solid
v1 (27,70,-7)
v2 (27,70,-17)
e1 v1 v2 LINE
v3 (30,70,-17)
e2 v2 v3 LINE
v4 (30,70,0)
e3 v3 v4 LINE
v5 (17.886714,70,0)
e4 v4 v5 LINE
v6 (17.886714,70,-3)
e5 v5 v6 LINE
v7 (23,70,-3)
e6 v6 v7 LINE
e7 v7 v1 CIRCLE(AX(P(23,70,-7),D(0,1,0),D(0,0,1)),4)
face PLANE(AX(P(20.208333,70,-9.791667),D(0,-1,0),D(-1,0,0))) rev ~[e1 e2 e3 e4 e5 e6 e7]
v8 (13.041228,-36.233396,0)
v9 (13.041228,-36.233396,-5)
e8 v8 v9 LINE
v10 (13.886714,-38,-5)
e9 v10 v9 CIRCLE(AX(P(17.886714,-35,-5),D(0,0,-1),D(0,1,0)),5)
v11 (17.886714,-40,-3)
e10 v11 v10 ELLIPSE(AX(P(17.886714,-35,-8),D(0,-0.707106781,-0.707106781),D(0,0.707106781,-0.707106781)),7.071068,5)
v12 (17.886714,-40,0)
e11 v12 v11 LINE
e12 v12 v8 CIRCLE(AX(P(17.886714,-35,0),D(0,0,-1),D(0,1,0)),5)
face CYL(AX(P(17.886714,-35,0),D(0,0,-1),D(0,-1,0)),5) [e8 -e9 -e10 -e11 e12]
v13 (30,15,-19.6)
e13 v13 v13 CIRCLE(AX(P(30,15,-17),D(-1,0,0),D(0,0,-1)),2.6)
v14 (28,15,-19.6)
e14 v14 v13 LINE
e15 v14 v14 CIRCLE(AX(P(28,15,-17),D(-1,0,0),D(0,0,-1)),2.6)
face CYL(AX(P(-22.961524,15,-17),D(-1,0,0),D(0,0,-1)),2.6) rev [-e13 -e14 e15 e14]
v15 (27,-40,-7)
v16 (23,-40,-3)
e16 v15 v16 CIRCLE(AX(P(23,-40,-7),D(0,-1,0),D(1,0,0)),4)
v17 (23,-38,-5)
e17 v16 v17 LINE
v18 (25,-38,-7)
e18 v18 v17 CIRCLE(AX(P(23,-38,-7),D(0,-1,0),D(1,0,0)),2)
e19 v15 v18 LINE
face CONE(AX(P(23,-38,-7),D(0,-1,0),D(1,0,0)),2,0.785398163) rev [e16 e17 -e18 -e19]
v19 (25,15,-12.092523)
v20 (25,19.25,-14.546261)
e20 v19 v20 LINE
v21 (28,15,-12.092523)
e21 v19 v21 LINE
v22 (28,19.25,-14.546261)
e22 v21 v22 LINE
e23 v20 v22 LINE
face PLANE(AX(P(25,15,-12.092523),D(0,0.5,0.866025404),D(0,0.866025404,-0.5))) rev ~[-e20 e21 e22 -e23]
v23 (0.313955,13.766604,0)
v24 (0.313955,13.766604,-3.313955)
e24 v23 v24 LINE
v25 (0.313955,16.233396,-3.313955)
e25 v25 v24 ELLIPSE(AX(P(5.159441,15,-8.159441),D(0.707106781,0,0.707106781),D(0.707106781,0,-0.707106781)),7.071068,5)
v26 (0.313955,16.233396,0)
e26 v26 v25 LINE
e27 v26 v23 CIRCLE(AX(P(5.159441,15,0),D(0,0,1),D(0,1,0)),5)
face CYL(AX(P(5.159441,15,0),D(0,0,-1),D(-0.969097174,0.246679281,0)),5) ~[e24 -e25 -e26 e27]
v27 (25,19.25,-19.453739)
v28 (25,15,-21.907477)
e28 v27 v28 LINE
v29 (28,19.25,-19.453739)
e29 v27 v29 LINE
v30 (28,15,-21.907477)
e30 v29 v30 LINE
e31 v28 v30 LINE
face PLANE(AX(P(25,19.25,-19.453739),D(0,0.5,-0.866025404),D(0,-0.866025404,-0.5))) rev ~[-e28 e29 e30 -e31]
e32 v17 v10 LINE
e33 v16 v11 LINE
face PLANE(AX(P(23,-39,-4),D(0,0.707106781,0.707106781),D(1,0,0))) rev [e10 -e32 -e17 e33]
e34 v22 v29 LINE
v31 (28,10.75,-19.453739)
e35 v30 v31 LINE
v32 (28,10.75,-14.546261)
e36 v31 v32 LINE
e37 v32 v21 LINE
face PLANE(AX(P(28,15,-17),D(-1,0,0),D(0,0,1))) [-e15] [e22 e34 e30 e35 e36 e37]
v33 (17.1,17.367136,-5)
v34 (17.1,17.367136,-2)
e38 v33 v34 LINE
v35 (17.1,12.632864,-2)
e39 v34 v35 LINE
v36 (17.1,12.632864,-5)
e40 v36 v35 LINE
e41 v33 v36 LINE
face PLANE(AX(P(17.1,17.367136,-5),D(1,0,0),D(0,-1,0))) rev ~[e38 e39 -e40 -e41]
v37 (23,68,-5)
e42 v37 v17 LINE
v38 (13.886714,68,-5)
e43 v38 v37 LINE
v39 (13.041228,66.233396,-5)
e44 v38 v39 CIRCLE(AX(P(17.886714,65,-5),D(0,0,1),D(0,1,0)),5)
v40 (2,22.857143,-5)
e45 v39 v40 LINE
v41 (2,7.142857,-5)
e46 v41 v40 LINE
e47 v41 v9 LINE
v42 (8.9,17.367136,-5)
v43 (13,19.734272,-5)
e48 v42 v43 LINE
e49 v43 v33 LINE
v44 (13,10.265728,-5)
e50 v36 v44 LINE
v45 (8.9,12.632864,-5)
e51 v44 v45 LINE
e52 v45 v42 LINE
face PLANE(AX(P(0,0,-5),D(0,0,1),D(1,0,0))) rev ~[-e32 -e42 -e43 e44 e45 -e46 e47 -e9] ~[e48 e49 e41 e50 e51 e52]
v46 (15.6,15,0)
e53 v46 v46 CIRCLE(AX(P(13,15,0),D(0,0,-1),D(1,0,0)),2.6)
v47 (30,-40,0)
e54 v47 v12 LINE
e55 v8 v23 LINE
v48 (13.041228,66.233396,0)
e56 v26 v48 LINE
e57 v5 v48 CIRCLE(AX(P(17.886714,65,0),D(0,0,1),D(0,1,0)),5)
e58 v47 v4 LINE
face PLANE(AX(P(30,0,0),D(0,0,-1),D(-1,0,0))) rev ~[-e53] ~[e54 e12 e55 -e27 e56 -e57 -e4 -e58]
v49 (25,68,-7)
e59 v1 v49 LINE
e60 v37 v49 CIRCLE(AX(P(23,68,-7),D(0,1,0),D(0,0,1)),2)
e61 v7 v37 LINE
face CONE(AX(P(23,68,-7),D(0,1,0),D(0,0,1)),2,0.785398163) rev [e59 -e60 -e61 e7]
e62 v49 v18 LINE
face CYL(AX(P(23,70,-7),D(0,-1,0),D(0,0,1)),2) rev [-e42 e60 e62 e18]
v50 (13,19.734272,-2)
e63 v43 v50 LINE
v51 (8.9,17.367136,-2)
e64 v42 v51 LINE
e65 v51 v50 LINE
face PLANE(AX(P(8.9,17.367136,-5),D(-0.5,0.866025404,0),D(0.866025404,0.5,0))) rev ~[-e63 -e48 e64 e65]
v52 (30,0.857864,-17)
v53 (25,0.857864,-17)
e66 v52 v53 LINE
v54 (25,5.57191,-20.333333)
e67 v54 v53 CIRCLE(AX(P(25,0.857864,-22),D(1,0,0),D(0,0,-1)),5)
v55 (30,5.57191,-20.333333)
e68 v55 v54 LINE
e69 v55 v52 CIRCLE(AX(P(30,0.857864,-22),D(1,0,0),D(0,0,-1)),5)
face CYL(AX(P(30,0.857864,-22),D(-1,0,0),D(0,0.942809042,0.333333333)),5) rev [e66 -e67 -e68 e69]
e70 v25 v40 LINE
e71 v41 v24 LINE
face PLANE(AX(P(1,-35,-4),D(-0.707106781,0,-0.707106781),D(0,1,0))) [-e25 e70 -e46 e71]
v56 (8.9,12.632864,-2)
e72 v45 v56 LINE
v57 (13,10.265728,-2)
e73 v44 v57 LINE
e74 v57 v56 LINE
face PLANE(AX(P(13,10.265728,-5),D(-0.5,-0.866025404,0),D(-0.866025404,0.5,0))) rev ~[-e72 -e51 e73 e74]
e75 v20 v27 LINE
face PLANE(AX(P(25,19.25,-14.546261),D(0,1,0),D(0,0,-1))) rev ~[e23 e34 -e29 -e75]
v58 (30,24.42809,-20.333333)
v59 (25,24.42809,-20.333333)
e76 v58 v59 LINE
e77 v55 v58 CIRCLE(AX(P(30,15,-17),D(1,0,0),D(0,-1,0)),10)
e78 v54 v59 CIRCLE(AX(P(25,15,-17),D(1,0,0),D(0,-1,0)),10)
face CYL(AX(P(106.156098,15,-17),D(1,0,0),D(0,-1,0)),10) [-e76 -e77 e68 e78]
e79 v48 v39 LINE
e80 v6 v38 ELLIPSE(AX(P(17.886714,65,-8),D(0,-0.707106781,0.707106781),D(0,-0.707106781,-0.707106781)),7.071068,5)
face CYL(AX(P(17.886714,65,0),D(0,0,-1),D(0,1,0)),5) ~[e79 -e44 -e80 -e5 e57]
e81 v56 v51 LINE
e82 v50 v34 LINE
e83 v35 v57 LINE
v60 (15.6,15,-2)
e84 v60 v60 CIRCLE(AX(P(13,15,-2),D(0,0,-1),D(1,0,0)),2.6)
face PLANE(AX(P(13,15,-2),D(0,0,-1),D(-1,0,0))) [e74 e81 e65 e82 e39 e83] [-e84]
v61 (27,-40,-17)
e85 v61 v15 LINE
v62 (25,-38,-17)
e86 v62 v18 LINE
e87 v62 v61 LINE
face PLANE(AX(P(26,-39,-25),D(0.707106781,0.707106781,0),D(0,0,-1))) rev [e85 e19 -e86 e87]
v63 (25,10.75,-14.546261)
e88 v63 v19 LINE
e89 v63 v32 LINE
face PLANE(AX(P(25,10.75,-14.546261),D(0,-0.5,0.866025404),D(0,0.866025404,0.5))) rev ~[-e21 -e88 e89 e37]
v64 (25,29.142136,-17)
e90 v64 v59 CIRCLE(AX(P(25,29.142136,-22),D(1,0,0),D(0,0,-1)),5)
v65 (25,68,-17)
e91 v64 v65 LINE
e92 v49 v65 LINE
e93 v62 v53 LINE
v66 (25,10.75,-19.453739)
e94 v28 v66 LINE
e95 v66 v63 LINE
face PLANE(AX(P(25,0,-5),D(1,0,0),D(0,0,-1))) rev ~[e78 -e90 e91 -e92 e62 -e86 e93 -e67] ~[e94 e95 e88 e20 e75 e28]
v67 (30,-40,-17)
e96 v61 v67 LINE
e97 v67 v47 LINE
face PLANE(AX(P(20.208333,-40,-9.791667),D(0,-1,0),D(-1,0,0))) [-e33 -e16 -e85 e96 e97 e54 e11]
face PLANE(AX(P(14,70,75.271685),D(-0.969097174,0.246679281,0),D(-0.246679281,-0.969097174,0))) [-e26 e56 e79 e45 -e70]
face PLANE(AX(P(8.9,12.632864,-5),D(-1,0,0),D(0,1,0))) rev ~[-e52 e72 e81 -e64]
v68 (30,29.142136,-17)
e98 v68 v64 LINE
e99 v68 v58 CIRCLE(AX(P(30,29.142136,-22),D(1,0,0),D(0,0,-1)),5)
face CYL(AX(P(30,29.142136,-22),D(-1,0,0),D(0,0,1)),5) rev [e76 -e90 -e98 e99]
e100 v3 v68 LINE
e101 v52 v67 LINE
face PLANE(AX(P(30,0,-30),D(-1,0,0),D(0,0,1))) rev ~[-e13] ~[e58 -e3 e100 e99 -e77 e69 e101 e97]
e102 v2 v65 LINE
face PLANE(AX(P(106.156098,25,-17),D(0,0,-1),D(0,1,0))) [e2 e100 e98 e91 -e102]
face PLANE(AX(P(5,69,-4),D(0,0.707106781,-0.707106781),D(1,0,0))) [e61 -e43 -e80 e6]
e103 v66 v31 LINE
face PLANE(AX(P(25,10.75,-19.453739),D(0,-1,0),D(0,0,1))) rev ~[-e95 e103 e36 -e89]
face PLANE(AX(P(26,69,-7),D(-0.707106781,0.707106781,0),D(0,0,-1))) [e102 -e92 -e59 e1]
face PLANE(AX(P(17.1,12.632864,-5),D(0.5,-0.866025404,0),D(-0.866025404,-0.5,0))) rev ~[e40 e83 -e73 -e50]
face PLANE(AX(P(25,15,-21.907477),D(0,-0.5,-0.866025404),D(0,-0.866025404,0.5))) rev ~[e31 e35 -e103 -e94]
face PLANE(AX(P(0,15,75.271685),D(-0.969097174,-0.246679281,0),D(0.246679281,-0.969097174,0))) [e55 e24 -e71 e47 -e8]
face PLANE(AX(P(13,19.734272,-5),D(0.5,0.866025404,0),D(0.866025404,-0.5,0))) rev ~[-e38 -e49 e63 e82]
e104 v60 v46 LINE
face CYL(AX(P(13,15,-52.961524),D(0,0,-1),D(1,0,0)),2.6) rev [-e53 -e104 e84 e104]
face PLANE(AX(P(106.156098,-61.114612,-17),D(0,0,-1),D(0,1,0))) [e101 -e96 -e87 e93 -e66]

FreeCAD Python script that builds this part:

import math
import FreeCAD as App
import Part
import Sketcher
from FreeCAD import Vector
Q = App.Units.Quantity


def edges_at(feature, points):
    """Names of the edges that pass closest to the given points."""
    edges = feature.Shape.Edges
    near = lambda p: min(range(len(edges)), key=lambda i: edges[i].distToShape(Part.Vertex(*p))[0])
    return sorted({f"Edge{near(p) + 1}" for p in points})


def add_polygon(sketch, points):
    """Adds a closed chain of lines whose ends are joined by coincident constraints."""
    first, n = sketch.GeometryCount, len(points)
    for a, b in zip(points, points[1:] + points[:1]):
        sketch.addGeometry(Part.LineSegment(App.Vector(*a, 0), App.Vector(*b, 0)), False)
    for i in range(n):
        sketch.addConstraint(Sketcher.Constraint("Coincident", first + i, 2, first + (i + 1) % n, 1))

doc = App.newDocument("Part")
body = doc.addObject("PartDesign::Body", "Body")

# Sketch on XZ plane
sketch1 = doc.addObject("Sketcher::SketchObject", "Sketch")
body.addObject(sketch1)
sketch1.AttachmentSupport = (doc.XZ_Plane, [""])
sketch1.MapMode = "FlatFace"
add_polygon(sketch1, [(0, 0), (30, 0), (30, -30), (25, -30), (25, -5), (0, -5)])  # lines 0-5
sketch1.addConstraint(Sketcher.Constraint("Horizontal", 0))
sketch1.addConstraint(Sketcher.Constraint("Vertical", 1))
sketch1.addConstraint(Sketcher.Constraint("Horizontal", 2))
sketch1.addConstraint(Sketcher.Constraint("Vertical", 3))
sketch1.addConstraint(Sketcher.Constraint("Horizontal", 4))
sketch1.addConstraint(Sketcher.Constraint("Vertical", 5))
sketch1.addConstraint(Sketcher.Constraint("Coincident", 5, 2, -1, 1))
sketch1.addConstraint(Sketcher.Constraint("Equal", 0, 1))
sketch1.addConstraint(Sketcher.Constraint("Equal", 4, 3))
sketch1.addConstraint(Sketcher.Constraint("DistanceX", 0, 1, 0, 2, Q("30 mm")))
sketch1.addConstraint(Sketcher.Constraint("DistanceX", 2, 2, 2, 1, Q("5 mm")))
pad1 = doc.addObject("PartDesign::Pad", "Pad")
body.addObject(pad1)
pad1.Profile = sketch1
pad1.Length = 30
pad1.Reversed = True

# Sketch on XY plane
sketch2 = doc.addObject("Sketcher::SketchObject", "Sketch001")
body.addObject(sketch2)
sketch2.AttachmentSupport = (doc.XY_Plane, [""])
sketch2.MapMode = "FlatFace"
sketch2.addGeometry(Part.Circle(Vector(13, 15, 0), Vector(0, 0, 1), 2.6), False)
sketch2.addConstraint(Sketcher.Constraint("Diameter", 0, Q("5.2 mm")))
sketch2.addConstraint(Sketcher.Constraint("DistanceX", -1, 1, 0, 3, Q("13 mm")))
sketch2.addConstraint(Sketcher.Constraint("DistanceY", -1, 1, 0, 3, Q("15 mm")))
pocket1 = doc.addObject("PartDesign::Pocket", "Pocket")
body.addObject(pocket1)
pocket1.Profile = sketch2
pocket1.Type = "ThroughAll"
pocket1.Midplane = True

# Sketch on YZ plane
sketch3 = doc.addObject("Sketcher::SketchObject", "Sketch002")
body.addObject(sketch3)
sketch3.AttachmentSupport = (doc.YZ_Plane, [""])
sketch3.MapMode = "FlatFace"
sketch3.AttachmentOffset = App.Placement(Vector(0, 0, 30), App.Rotation())
sketch3.addGeometry(Part.Circle(Vector(15, -17, 0), Vector(0, 0, 1), 2.6), False)
sketch3.addConstraint(Sketcher.Constraint("Diameter", 0, Q("5.2 mm")))
sketch3.addConstraint(Sketcher.Constraint("DistanceX", -1, 1, 0, 3, Q("15 mm")))
sketch3.addConstraint(Sketcher.Constraint("DistanceY", 0, 3, -1, 1, Q("17 mm")))
pocket2 = doc.addObject("PartDesign::Pocket", "Pocket001")
body.addObject(pocket2)
pocket2.Profile = sketch3
pocket2.Type = "ThroughAll"
pocket2.Midplane = True

# Sketch on YZ plane
sketch4 = doc.addObject("Sketcher::SketchObject", "Sketch003")
body.addObject(sketch4)
sketch4.AttachmentSupport = (doc.YZ_Plane, [""])
sketch4.MapMode = "FlatFace"
sketch4.AttachmentOffset = App.Placement(Vector(0, 0, 25), App.Rotation())
add_polygon(sketch4, [(15, -21.907477), (10.75, -19.453739), (10.75, -14.546261), (15, -12.092523), (19.25, -14.546261), (19.25, -19.453739)])  # lines 0-5
sketch4.addConstraint(Sketcher.Constraint("Vertical", 1))
sketch4.addConstraint(Sketcher.Constraint("Vertical", 4))
sketch4.addConstraint(Sketcher.Constraint("Parallel", 0, 3))
sketch4.addConstraint(Sketcher.Constraint("Parallel", 2, 5))
sketch4.addConstraint(Sketcher.Constraint("Horizontal", 1, 2, 3, 2))
sketch4.addConstraint(Sketcher.Constraint("Horizontal", 0, 2, 4, 2))
sketch4.addConstraint(Sketcher.Constraint("Vertical", 2, 2, 5, 2))
sketch4.addConstraint(Sketcher.Constraint("Angle", 0, Q("150 deg")))
sketch4.addConstraint(Sketcher.Constraint("DistanceX", -1, 1, 2, 2, Q("15 mm")))
sketch4.addConstraint(Sketcher.Constraint("DistanceX", 1, 2, 3, 2, Q("8.5 mm")))
sketch4.addConstraint(Sketcher.Constraint("DistanceY", 1, 1, 1, 2, Q("4.907477 mm")))
sketch4.addConstraint(Sketcher.Constraint("DistanceY", 0, 2, -1, 1, Q("19.453739 mm")))
pocket3 = doc.addObject("PartDesign::Pocket", "Pocket002")
body.addObject(pocket3)
pocket3.Profile = sketch4
pocket3.Length = 3
pocket3.Reversed = True

# Sketch on XY plane
sketch5 = doc.addObject("Sketcher::SketchObject", "Sketch004")
body.addObject(sketch5)
sketch5.AttachmentSupport = (doc.XY_Plane, [""])
sketch5.MapMode = "FlatFace"
sketch5.AttachmentOffset = App.Placement(Vector(0, 0, -5), App.Rotation())
add_polygon(sketch5, [(17.1, 17.367136), (17.1, 12.632864), (13, 10.265728), (8.9, 12.632864), (8.9, 17.367136), (13, 19.734272)])  # lines 0-5
sketch5.addConstraint(Sketcher.Constraint("Vertical", 0))
sketch5.addConstraint(Sketcher.Constraint("Vertical", 3))
sketch5.addConstraint(Sketcher.Constraint("Parallel", 1, 4))
sketch5.addConstraint(Sketcher.Constraint("Parallel", 2, 5))
sketch5.addConstraint(Sketcher.Constraint("Horizontal", 0, 2, 2, 2))
sketch5.addConstraint(Sketcher.Constraint("Horizontal", 3, 2, 5, 2))
sketch5.addConstraint(Sketcher.Constraint("Vertical", 1, 2, 4, 2))
sketch5.addConstraint(Sketcher.Constraint("Angle", 1, Q("-150 deg")))
sketch5.addConstraint(Sketcher.Constraint("DistanceX", -1, 1, 1, 2, Q("13 mm")))
sketch5.addConstraint(Sketcher.Constraint("DistanceX", -1, 1, 0, 2, Q("17.1 mm")))
sketch5.addConstraint(Sketcher.Constraint("DistanceY", 0, 2, 0, 1, Q("4.734272 mm")))
sketch5.addConstraint(Sketcher.Constraint("DistanceY", -1, 1, 0, 2, Q("12.632864 mm")))
pocket4 = doc.addObject("PartDesign::Pocket", "Pocket003")
body.addObject(pocket4)
pocket4.Profile = sketch5
pocket4.Length = 3
pocket4.Reversed = True

# Sketch on XZ plane
sketch6 = doc.addObject("Sketcher::SketchObject", "Sketch005")
body.addObject(sketch6)
sketch6.AttachmentSupport = (doc.XZ_Plane, [""])
sketch6.MapMode = "FlatFace"
sketch6.AttachmentOffset = App.Placement(Vector(0, 0, -30), App.Rotation())
add_polygon(sketch6, [(25, -5), (0, -5), (0, 0), (30, 0), (30, -30), (25, -30)])  # lines 0-5
sketch6.addConstraint(Sketcher.Constraint("Horizontal", 0))
sketch6.addConstraint(Sketcher.Constraint("Vertical", 1))
sketch6.addConstraint(Sketcher.Constraint("Horizontal", 2))
sketch6.addConstraint(Sketcher.Constraint("Vertical", 3))
sketch6.addConstraint(Sketcher.Constraint("Horizontal", 4))
sketch6.addConstraint(Sketcher.Constraint("Vertical", 5))
sketch6.addConstraint(Sketcher.Constraint("Coincident", 1, 2, -1, 1))
sketch6.addConstraint(Sketcher.Constraint("Equal", 4, 1))
sketch6.addConstraint(Sketcher.Constraint("Equal", 2, 3))
sketch6.addConstraint(Sketcher.Constraint("DistanceX", 0, 2, 0, 1, Q("25 mm")))
sketch6.addConstraint(Sketcher.Constraint("DistanceX", 2, 1, 2, 2, Q("30 mm")))
pad2 = doc.addObject("PartDesign::Pad", "Pad001")
body.addObject(pad2)
pad2.Profile = sketch6
pad2.Length = 40
pad2.Reversed = True

# Sketch on XZ plane
sketch7 = doc.addObject("Sketcher::SketchObject", "Sketch006")
body.addObject(sketch7)
sketch7.AttachmentSupport = (doc.XZ_Plane, [""])
sketch7.MapMode = "FlatFace"
add_polygon(sketch7, [(25, -5), (0, -5), (0, 0), (30, 0), (30, -30), (25, -30)])  # lines 0-5
sketch7.addConstraint(Sketcher.Constraint("Horizontal", 0))
sketch7.addConstraint(Sketcher.Constraint("Vertical", 1))
sketch7.addConstraint(Sketcher.Constraint("Horizontal", 2))
sketch7.addConstraint(Sketcher.Constraint("Vertical", 3))
sketch7.addConstraint(Sketcher.Constraint("Horizontal", 4))
sketch7.addConstraint(Sketcher.Constraint("Vertical", 5))
sketch7.addConstraint(Sketcher.Constraint("Coincident", 1, 2, -1, 1))
sketch7.addConstraint(Sketcher.Constraint("Equal", 4, 1))
sketch7.addConstraint(Sketcher.Constraint("Equal", 2, 3))
sketch7.addConstraint(Sketcher.Constraint("DistanceX", 0, 2, 0, 1, Q("25 mm")))
sketch7.addConstraint(Sketcher.Constraint("DistanceX", 2, 1, 2, 2, Q("30 mm")))
pad3 = doc.addObject("PartDesign::Pad", "Pad002")
body.addObject(pad3)
pad3.Profile = sketch7
pad3.Length = 40
doc.recompute()

fillet = doc.addObject("PartDesign::Fillet", "Fillet")
body.addObject(fillet)
fillet.Base = (pad3, edges_at(pad3, [
    (0, 70, -2.5),
    (27.5, 70, -30),
    (27.5, -40, -30),
    (0, -40, -2.5),
]))
fillet.Radius = 5
doc.recompute()

fillet2 = doc.addObject("PartDesign::Fillet", "Fillet001")
body.addObject(fillet2)
fillet2.Base = (fillet, edges_at(fillet, [(25, 15, -5)]))
fillet2.Radius = 2
doc.recompute()

chamfer = doc.addObject("PartDesign::Chamfer", "Chamfer")
body.addObject(chamfer)
chamfer.Base = (fillet2, edges_at(fillet2, [
    (25, 70, -16),
    (25, 15, -30),
    (25, -40, -16),
    (25, -38.536, -28.536),
    (25, 68.536, -28.536),
    (0, 15, -5),
    (1.464, -38.536, -5),
    (1.464, 68.536, -5),
    (14, 70, -5),
    (14, -40, -5),
    (24.414, -40, -5.586),
    (24.414, 70, -5.586),
]))
chamfer.Size = 2

# Sketch on YZ plane
sketch8 = doc.addObject("Sketcher::SketchObject", "Sketch007")
body.addObject(sketch8)
sketch8.AttachmentSupport = (doc.YZ_Plane, [""])
sketch8.MapMode = "FlatFace"
sketch8.AttachmentOffset = App.Placement(Vector(0, 0, 25), App.Rotation())
sketch8.addGeometry(Part.LineSegment(Vector(25, -17, 0), Vector(79.176496, -17, 0)), False)
sketch8.addGeometry(Part.LineSegment(Vector(79.176496, -17, 0), Vector(30.916628, -82.490942, 0)), False)
sketch8.addGeometry(Part.LineSegment(Vector(30.916628, -82.490942, 0), Vector(-40.744999, -67.497355, 0)), False)
sketch8.addGeometry(Part.LineSegment(Vector(-40.744999, -67.497355, 0), Vector(-61.114612, -17, 0)), False)
sketch8.addGeometry(Part.LineSegment(Vector(-61.114612, -17, 0), Vector(5, -17, 0)), False)
sketch8.addGeometry(Part.ArcOfCircle(Part.Circle(Vector(15, -17, 0), Vector(0, 0, 1), 10), math.radians(180), math.radians(360)), False)
sketch8.addConstraint(Sketcher.Constraint("Coincident", 0, 2, 1, 1))
sketch8.addConstraint(Sketcher.Constraint("Coincident", 1, 2, 2, 1))
sketch8.addConstraint(Sketcher.Constraint("Coincident", 2, 2, 3, 1))
sketch8.addConstraint(Sketcher.Constraint("Coincident", 3, 2, 4, 1))
sketch8.addConstraint(Sketcher.Constraint("Coincident", 4, 2, 5, 1))
sketch8.addConstraint(Sketcher.Constraint("Coincident", 5, 2, 0, 1))
sketch8.addConstraint(Sketcher.Constraint("Horizontal", 0))
sketch8.addConstraint(Sketcher.Constraint("Horizontal", 4))
sketch8.addConstraint(Sketcher.Constraint("Horizontal", 5, 3, 0, 2))
sketch8.addConstraint(Sketcher.Constraint("Horizontal", 0, 2, 3, 2))
sketch8.addConstraint(Sketcher.Constraint("Radius", 5, Q("10 mm")))
sketch8.addConstraint(Sketcher.Constraint("DistanceX", -1, 1, 5, 3, Q("15 mm")))
sketch8.addConstraint(Sketcher.Constraint("DistanceY", 5, 3, -1, 1, Q("17 mm")))
sketch8.addConstraint(Sketcher.Constraint("DistanceX", 2, 2, -1, 1, Q("40.744999 mm")))
sketch8.addConstraint(Sketcher.Constraint("DistanceX", 0, 1, 0, 2, Q("54.176496 mm")))
sketch8.addConstraint(Sketcher.Constraint("DistanceX", 4, 1, 4, 2, Q("66.114612 mm")))
sketch8.addConstraint(Sketcher.Constraint("DistanceY", 1, 2, -1, 1, Q("82.490942 mm")))
sketch8.addConstraint(Sketcher.Constraint("DistanceX", 3, 2, 1, 2, Q("92.03124 mm")))
sketch8.addConstraint(Sketcher.Constraint("Distance", 2, Q("73.213362 mm")))
pocket5 = doc.addObject("PartDesign::Pocket", "Pocket004")
body.addObject(pocket5)
pocket5.Profile = sketch8
pocket5.Type = "ThroughAll"
pocket5.Midplane = True
doc.recompute()

fillet3 = doc.addObject("PartDesign::Fillet", "Fillet002")
body.addObject(fillet3)
fillet3.Base = (pocket5, edges_at(pocket5, [(27.5, 25, -17), (27.5, 5, -17)]))
fillet3.Radius = 5

# Sketch on XY plane
sketch9 = doc.addObject("Sketcher::SketchObject", "Sketch008")
body.addObject(sketch9)
sketch9.AttachmentSupport = (doc.XY_Plane, [""])
sketch9.MapMode = "FlatFace"
sketch9.AttachmentOffset = App.Placement(Vector(0, 0, -5), App.Rotation())
add_polygon(sketch9, [(14, 70), (0, 15), (14, -40), (-29.605001, -51.099455), (-59.954697, 7.95039), (-29.605001, 77.986583), (23, 76.93604)])  # lines 0-6
sketch9.addConstraint(Sketcher.Constraint("PointOnObject", 0, 2, -2))
sketch9.addConstraint(Sketcher.Constraint("Perpendicular", 1, 2))
sketch9.addConstraint(Sketcher.Constraint("Vertical", 2, 2, 4, 2))
sketch9.addConstraint(Sketcher.Constraint("Vertical", 1, 2, 6, 2))
sketch9.addConstraint(Sketcher.Constraint("Equal", 0, 1))
sketch9.addConstraint(Sketcher.Constraint("DistanceY", -1, 1, 0, 2, Q("15 mm")))
sketch9.addConstraint(Sketcher.Constraint("DistanceX", -1, 1, 1, 2, Q("14 mm")))
sketch9.addConstraint(Sketcher.Constraint("DistanceY", 1, 2, -1, 1, Q("40 mm")))
sketch9.addConstraint(Sketcher.Constraint("DistanceX", -1, 1, 5, 2, Q("23 mm")))
sketch9.addConstraint(Sketcher.Constraint("DistanceX", 2, 2, -1, 1, Q("29.605001 mm")))
sketch9.addConstraint(Sketcher.Constraint("Distance", 6, Q("11.362599 mm")))
sketch9.addConstraint(Sketcher.Constraint("Distance", 3, Q("66.392682 mm")))
sketch9.addConstraint(Sketcher.Constraint("Distance", 5, Q("52.61549 mm")))
sketch9.addConstraint(Sketcher.Constraint("DistanceY", -1, 1, 3, 2, Q("7.95039 mm")))
pocket6 = doc.addObject("PartDesign::Pocket", "Pocket005")
body.addObject(pocket6)
pocket6.Profile = sketch9
pocket6.Type = "ThroughAll"
pocket6.Midplane = True
doc.recompute()

fillet4 = doc.addObject("PartDesign::Fillet", "Fillet003")
body.addObject(fillet4)
fillet4.Base = (pocket6, edges_at(pocket6, [(14, -40, -1.5), (14, 70, -1.5), (0, 15, -1.5)]))
fillet4.Radius = 5

doc.recompute()
